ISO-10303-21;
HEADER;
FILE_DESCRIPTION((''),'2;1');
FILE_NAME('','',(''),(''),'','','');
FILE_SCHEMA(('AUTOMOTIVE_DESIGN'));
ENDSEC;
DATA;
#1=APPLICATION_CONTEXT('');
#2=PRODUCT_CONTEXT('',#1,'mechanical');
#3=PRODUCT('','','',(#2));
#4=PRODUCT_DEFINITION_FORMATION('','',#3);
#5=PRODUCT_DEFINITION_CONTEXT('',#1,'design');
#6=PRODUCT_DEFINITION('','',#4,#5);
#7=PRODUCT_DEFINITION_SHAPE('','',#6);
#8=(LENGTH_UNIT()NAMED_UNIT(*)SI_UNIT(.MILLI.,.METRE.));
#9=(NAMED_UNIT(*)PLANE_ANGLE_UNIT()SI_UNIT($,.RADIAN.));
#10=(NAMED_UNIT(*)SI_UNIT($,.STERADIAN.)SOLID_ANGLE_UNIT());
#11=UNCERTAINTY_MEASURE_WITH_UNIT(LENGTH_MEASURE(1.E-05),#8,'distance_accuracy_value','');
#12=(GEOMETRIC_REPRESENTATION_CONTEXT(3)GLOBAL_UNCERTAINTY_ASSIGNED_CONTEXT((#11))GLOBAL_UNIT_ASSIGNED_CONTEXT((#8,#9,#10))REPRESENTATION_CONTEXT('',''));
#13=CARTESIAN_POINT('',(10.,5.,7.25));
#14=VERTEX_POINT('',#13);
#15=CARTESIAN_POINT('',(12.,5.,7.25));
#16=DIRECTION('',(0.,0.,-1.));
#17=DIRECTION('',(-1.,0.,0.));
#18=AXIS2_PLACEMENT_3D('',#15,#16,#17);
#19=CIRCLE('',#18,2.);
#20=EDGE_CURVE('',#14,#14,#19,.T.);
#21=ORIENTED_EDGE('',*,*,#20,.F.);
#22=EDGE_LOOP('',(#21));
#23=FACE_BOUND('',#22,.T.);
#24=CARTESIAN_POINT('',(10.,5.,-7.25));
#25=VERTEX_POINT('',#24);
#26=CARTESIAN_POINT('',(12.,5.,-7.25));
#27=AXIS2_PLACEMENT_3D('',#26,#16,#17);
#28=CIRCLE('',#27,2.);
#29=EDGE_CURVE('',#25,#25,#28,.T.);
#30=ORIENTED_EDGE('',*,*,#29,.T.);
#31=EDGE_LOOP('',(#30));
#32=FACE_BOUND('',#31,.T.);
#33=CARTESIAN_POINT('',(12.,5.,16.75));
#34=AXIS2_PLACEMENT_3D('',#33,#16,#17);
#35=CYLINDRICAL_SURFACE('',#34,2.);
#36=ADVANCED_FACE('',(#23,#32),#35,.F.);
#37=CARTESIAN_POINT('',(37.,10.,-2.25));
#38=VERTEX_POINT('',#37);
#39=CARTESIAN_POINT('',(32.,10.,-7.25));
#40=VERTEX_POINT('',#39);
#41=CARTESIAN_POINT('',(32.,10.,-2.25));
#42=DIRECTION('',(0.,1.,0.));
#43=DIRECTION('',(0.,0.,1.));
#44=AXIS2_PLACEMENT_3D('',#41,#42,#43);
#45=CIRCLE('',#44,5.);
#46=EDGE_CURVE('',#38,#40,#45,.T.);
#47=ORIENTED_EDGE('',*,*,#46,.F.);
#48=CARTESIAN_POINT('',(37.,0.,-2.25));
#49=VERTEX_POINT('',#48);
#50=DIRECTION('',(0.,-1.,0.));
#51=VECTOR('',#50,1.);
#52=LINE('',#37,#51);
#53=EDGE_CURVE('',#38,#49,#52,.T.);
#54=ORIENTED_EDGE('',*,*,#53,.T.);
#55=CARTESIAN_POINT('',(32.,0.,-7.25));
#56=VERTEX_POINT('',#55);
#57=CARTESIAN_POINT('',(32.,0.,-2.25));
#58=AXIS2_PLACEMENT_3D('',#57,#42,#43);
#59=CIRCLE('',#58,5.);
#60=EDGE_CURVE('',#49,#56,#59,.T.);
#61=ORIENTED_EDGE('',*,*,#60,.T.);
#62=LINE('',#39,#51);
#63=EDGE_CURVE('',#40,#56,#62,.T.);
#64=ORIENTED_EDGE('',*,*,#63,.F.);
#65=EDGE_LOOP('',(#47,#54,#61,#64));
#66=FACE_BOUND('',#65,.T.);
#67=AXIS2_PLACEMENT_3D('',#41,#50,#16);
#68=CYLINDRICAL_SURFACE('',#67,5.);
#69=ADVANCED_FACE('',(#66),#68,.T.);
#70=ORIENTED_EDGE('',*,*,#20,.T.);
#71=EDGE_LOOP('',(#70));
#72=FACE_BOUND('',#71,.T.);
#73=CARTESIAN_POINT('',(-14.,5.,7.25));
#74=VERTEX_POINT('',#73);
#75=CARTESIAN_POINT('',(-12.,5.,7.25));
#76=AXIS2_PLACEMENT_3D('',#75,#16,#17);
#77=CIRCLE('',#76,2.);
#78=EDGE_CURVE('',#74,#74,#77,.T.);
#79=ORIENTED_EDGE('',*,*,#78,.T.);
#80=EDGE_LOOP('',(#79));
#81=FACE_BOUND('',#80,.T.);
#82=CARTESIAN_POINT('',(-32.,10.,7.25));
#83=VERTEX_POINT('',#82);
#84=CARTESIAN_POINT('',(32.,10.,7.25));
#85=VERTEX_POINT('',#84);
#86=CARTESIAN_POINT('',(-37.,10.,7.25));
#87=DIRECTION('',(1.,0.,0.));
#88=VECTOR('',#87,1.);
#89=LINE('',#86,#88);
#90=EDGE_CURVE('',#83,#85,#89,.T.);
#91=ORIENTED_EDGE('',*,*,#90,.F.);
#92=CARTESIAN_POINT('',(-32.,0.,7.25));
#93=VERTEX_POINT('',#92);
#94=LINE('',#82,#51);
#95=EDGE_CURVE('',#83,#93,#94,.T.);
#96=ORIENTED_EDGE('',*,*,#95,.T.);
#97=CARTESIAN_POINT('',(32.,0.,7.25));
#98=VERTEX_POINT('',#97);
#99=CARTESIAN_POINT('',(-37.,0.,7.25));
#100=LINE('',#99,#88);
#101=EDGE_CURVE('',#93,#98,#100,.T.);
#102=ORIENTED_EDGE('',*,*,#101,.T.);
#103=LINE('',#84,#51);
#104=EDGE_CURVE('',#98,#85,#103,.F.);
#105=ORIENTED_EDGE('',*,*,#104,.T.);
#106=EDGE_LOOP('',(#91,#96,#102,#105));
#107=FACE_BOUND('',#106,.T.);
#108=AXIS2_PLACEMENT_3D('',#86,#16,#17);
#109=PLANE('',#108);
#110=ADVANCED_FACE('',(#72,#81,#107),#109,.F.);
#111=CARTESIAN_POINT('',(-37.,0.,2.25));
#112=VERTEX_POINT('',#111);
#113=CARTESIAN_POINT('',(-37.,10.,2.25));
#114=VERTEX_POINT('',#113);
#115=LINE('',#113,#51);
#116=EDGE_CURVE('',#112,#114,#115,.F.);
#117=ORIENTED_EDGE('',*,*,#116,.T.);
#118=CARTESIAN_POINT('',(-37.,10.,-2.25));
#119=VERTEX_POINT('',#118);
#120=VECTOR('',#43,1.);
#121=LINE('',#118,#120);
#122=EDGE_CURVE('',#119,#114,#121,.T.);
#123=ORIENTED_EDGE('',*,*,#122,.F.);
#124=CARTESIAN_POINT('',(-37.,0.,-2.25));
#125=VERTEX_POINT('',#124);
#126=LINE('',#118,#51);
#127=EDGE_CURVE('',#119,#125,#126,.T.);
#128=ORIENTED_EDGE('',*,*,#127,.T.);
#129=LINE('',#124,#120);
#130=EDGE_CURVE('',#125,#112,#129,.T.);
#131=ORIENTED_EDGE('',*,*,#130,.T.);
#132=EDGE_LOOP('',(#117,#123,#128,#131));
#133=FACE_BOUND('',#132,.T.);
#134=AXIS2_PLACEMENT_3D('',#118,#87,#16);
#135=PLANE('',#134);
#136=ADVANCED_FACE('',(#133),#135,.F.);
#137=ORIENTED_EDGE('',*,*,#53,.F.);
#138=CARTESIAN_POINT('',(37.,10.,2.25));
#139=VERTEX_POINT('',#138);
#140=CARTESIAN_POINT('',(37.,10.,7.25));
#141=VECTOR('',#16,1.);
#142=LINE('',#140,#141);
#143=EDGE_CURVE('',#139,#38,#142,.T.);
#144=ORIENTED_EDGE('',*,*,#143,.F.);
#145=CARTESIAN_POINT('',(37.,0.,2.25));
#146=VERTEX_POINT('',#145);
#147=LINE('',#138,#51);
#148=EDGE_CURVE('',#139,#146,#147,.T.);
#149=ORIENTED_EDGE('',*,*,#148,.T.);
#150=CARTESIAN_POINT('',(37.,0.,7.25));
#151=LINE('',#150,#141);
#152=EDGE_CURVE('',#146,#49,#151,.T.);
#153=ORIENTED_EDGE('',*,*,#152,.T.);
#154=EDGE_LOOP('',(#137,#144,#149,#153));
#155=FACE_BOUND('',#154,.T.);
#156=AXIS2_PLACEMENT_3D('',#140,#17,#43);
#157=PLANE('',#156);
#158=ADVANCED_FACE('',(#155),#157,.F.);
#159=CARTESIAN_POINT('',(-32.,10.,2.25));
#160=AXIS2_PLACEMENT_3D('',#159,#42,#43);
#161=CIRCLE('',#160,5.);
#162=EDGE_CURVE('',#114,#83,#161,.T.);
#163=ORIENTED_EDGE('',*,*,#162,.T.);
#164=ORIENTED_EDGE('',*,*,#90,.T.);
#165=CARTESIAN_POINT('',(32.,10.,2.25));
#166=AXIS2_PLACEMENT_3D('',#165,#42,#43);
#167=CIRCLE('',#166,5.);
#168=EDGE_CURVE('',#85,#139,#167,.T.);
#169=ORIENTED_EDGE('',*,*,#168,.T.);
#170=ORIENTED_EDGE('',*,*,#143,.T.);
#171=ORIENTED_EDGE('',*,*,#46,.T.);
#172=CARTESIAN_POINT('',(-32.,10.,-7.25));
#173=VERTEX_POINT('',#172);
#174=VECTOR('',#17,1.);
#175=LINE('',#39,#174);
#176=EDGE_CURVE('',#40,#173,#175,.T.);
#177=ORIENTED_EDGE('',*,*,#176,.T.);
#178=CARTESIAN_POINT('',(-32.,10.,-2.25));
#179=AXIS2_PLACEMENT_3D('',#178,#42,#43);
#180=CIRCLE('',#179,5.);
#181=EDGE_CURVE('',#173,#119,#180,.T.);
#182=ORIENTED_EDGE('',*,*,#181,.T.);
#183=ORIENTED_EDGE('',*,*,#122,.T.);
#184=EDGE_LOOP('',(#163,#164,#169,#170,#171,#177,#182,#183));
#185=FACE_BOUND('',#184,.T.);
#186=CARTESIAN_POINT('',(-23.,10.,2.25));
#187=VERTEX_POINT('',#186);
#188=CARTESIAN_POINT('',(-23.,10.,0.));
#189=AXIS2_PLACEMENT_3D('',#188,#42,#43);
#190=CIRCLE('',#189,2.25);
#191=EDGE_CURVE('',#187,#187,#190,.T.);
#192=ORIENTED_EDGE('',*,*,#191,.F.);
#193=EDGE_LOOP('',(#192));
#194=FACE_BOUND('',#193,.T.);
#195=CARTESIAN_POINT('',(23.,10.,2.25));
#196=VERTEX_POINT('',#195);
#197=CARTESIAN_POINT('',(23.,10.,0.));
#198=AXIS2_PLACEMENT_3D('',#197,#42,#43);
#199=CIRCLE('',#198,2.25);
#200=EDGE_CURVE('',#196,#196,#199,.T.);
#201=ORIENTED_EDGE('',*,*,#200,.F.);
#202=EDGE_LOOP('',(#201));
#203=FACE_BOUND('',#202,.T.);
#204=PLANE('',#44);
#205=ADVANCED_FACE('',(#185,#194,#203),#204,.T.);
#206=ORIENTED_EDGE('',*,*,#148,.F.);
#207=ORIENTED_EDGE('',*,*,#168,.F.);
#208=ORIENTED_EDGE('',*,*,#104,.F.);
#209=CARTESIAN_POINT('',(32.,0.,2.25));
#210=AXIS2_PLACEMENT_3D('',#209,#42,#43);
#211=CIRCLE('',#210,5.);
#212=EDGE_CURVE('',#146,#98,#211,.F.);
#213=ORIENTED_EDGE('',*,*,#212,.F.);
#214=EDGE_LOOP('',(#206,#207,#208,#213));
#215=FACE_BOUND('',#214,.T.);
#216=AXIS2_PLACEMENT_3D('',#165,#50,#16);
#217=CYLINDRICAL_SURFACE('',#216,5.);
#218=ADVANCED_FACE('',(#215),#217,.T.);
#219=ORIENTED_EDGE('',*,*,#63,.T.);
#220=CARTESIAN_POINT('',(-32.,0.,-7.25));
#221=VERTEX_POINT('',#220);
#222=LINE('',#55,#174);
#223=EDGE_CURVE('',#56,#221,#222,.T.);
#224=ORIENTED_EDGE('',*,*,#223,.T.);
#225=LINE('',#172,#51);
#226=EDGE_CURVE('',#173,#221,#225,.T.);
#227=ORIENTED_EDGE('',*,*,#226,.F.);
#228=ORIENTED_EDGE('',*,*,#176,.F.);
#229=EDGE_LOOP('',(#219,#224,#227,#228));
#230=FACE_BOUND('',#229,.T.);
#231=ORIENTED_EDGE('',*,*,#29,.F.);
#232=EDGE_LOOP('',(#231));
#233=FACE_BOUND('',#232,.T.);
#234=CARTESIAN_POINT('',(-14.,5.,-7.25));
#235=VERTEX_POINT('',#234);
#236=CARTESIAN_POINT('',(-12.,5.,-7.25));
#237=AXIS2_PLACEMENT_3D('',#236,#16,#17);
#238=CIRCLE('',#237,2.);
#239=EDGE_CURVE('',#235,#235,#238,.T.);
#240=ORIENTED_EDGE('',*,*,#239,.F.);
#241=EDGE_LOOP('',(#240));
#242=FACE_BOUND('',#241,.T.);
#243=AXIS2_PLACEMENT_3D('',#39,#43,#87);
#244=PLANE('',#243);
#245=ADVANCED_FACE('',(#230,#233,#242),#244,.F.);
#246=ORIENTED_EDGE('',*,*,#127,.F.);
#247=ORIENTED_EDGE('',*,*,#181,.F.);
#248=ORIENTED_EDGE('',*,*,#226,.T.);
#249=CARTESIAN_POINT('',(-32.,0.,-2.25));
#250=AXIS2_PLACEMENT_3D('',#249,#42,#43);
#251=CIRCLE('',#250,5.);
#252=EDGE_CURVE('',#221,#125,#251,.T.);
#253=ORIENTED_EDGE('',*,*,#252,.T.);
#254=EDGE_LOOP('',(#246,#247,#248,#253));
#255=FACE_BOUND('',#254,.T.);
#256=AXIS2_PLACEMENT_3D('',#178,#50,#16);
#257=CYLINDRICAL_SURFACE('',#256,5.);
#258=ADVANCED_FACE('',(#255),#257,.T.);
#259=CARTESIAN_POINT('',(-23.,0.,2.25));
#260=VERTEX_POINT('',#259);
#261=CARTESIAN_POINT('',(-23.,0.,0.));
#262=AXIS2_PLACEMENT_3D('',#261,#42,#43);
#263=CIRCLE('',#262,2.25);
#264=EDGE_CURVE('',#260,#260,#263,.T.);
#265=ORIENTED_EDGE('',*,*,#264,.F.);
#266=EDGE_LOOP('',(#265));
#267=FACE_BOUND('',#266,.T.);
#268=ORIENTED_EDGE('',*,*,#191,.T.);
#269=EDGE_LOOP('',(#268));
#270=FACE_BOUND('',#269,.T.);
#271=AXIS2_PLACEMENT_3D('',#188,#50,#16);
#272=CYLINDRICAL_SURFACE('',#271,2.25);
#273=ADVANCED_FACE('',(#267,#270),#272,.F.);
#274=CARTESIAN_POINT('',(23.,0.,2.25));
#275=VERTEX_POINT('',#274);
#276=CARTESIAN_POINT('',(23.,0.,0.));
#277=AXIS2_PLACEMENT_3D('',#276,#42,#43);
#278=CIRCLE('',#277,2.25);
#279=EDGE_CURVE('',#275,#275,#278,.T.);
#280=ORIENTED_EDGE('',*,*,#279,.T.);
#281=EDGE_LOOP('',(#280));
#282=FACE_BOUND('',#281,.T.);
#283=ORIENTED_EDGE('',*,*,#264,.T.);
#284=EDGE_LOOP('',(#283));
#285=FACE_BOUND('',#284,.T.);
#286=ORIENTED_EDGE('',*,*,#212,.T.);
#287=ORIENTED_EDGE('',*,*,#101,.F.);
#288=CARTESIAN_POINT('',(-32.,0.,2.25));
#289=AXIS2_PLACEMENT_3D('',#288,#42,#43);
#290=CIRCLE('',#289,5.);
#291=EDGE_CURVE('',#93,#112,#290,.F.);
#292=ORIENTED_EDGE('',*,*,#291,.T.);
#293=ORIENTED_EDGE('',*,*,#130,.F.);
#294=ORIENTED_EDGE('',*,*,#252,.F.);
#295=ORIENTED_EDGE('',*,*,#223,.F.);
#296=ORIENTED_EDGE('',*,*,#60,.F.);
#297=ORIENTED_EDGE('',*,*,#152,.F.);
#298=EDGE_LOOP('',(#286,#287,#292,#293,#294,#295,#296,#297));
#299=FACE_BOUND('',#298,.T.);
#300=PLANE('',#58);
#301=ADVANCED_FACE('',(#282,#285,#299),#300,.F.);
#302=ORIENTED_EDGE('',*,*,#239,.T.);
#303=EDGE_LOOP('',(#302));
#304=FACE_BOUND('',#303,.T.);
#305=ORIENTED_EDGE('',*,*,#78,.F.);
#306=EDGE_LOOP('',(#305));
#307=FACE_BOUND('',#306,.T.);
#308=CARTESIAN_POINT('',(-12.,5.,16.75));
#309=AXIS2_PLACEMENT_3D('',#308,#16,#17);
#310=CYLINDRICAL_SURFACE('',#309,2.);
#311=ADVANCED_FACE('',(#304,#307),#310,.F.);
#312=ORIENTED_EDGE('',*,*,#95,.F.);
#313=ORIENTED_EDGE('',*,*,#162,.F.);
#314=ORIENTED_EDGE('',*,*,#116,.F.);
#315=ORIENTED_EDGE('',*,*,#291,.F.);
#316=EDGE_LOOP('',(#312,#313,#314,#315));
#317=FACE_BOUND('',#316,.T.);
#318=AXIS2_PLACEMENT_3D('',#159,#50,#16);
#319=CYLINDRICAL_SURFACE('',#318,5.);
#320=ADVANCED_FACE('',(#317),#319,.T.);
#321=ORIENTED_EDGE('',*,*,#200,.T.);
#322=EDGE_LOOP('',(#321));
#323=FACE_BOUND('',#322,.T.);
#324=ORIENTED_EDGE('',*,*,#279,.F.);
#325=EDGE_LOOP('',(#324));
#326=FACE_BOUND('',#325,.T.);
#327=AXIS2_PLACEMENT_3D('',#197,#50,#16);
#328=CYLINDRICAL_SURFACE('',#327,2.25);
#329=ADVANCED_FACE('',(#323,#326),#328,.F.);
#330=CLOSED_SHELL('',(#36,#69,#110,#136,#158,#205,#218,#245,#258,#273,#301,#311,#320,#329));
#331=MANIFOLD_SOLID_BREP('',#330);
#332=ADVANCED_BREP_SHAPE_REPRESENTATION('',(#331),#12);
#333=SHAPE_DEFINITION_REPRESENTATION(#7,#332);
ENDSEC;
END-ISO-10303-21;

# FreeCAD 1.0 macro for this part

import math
import FreeCAD as App
import Part
import Sketcher

V = App.Vector


def edges_at(feature, points):
    """Names of the edges that pass closest to the given points."""
    edges = feature.Shape.Edges
    near = lambda p: min(range(len(edges)), key=lambda i: edges[i].distToShape(Part.Vertex(*p))[0])
    return sorted({f"Edge{near(p) + 1}" for p in points})

doc = App.newDocument("Part")
body = doc.addObject("PartDesign::Body", "Body")

# Sketch on XZ plane
sketch1 = body.newObject("Sketcher::SketchObject", "Sketch")
sketch1.AttachmentSupport = (doc.getObject("XZ_Plane"), [""])
sketch1.MapMode = "FlatFace"
sketch1.addGeometry(Part.LineSegment(V(32, -7.2, 0), V(-32, -7.2, 0)), False)
sketch1.addGeometry(Part.ArcOfCircle(Part.Circle(V(-32, -2.2, 0), V(0, 0, 1), 5), math.radians(180), math.radians(270)), False)
sketch1.addGeometry(Part.LineSegment(V(-37, -2.2, 0), V(-37, 7.2, 0)), False)
sketch1.addGeometry(Part.LineSegment(V(-37, 7.2, 0), V(37, 7.2, 0)), False)
sketch1.addGeometry(Part.LineSegment(V(37, 7.2, 0), V(37, -2.2, 0)), False)
sketch1.addGeometry(Part.ArcOfCircle(Part.Circle(V(32, -2.2, 0), V(0, 0, 1), 5), math.radians(-90), math.radians(0)), False)
sketch1.addGeometry(Part.Circle(V(-23, 0, 0), V(0, 0, 1), 2.2), False)
sketch1.addGeometry(Part.Circle(V(23, 0, 0), V(0, 0, 1), 2.2), False)
sketch1.addConstraint(Sketcher.Constraint("Tangent", 0, 2, 1, 2))
sketch1.addConstraint(Sketcher.Constraint("Tangent", 1, 1, 2, 1))
sketch1.addConstraint(Sketcher.Constraint("Coincident", 2, 2, 3, 1))
sketch1.addConstraint(Sketcher.Constraint("Coincident", 3, 2, 4, 1))
sketch1.addConstraint(Sketcher.Constraint("Tangent", 4, 2, 5, 2))
sketch1.addConstraint(Sketcher.Constraint("Tangent", 5, 1, 0, 1))
sketch1.addConstraint(Sketcher.Constraint("Horizontal", 0))
sketch1.addConstraint(Sketcher.Constraint("Vertical", 2))
sketch1.addConstraint(Sketcher.Constraint("Horizontal", 3))
sketch1.addConstraint(Sketcher.Constraint("Vertical", 4))
sketch1.addConstraint(Sketcher.Constraint("Equal", 1, 5))
sketch1.addConstraint(Sketcher.Constraint("Equal", 6, 7))
sketch1.addConstraint(Sketcher.Constraint("Symmetric", 6, 3, 7, 3, -1, 1))
sketch1.addConstraint(Sketcher.Constraint("PointOnObject", 6, 3, -1))
sketch1.addConstraint(Sketcher.Constraint("Radius", 1, 5.0))
sketch1.addConstraint(Sketcher.Constraint("Diameter", 6, 4.5))
sketch1.addConstraint(Sketcher.Constraint("DistanceX", 0, 2, 0, 1, 64.0))
sketch1.addConstraint(Sketcher.Constraint("DistanceY", 2, 1, 2, 2, 9.5))
sketch1.addConstraint(Sketcher.Constraint("DistanceX", 1, 3, -1, 1, 32.0))
sketch1.addConstraint(Sketcher.Constraint("DistanceX", 6, 3, -1, 1, 23.0))
sketch1.addConstraint(Sketcher.Constraint("DistanceY", 1, 3, -1, 1, 2.25))
pad1 = body.newObject("PartDesign::Pad", "Pad")
pad1.Profile = sketch1
pad1.Length = 10
pad1.Reversed = True
doc.recompute()

fillet = body.newObject("PartDesign::Fillet", "Fillet")
fillet.Base = (pad1, edges_at(pad1, [(37, 5, 7.25), (-37, 5, 7.25)]))
fillet.Radius = 5

# Sketch on XY plane
sketch2 = body.newObject("Sketcher::SketchObject", "Sketch001")
sketch2.AttachmentSupport = (doc.getObject("XY_Plane"), [""])
sketch2.MapMode = "FlatFace"
sketch2.AttachmentOffset = App.Placement(V(0, 0, -7.25), App.Rotation())
sketch2.addGeometry(Part.Circle(V(12, 5, 0), V(0, 0, 1), 2), False)
sketch2.addGeometry(Part.Circle(V(-12, 5, 0), V(0, 0, 1), 2), False)
sketch2.addConstraint(Sketcher.Constraint("Equal", 0, 1))
sketch2.addConstraint(Sketcher.Constraint("Symmetric", 0, 3, 1, 3, -2))
sketch2.addConstraint(Sketcher.Constraint("Diameter", 0, 4.0))
sketch2.addConstraint(Sketcher.Constraint("DistanceX", -1, 1, 0, 3, 12.0))
sketch2.addConstraint(Sketcher.Constraint("DistanceY", -1, 1, 0, 3, 5.0))
pocket1 = body.newObject("PartDesign::Pocket", "Pocket")
pocket1.Profile = sketch2
pocket1.Length = 24
pocket1.Reversed = True

doc.recompute()
